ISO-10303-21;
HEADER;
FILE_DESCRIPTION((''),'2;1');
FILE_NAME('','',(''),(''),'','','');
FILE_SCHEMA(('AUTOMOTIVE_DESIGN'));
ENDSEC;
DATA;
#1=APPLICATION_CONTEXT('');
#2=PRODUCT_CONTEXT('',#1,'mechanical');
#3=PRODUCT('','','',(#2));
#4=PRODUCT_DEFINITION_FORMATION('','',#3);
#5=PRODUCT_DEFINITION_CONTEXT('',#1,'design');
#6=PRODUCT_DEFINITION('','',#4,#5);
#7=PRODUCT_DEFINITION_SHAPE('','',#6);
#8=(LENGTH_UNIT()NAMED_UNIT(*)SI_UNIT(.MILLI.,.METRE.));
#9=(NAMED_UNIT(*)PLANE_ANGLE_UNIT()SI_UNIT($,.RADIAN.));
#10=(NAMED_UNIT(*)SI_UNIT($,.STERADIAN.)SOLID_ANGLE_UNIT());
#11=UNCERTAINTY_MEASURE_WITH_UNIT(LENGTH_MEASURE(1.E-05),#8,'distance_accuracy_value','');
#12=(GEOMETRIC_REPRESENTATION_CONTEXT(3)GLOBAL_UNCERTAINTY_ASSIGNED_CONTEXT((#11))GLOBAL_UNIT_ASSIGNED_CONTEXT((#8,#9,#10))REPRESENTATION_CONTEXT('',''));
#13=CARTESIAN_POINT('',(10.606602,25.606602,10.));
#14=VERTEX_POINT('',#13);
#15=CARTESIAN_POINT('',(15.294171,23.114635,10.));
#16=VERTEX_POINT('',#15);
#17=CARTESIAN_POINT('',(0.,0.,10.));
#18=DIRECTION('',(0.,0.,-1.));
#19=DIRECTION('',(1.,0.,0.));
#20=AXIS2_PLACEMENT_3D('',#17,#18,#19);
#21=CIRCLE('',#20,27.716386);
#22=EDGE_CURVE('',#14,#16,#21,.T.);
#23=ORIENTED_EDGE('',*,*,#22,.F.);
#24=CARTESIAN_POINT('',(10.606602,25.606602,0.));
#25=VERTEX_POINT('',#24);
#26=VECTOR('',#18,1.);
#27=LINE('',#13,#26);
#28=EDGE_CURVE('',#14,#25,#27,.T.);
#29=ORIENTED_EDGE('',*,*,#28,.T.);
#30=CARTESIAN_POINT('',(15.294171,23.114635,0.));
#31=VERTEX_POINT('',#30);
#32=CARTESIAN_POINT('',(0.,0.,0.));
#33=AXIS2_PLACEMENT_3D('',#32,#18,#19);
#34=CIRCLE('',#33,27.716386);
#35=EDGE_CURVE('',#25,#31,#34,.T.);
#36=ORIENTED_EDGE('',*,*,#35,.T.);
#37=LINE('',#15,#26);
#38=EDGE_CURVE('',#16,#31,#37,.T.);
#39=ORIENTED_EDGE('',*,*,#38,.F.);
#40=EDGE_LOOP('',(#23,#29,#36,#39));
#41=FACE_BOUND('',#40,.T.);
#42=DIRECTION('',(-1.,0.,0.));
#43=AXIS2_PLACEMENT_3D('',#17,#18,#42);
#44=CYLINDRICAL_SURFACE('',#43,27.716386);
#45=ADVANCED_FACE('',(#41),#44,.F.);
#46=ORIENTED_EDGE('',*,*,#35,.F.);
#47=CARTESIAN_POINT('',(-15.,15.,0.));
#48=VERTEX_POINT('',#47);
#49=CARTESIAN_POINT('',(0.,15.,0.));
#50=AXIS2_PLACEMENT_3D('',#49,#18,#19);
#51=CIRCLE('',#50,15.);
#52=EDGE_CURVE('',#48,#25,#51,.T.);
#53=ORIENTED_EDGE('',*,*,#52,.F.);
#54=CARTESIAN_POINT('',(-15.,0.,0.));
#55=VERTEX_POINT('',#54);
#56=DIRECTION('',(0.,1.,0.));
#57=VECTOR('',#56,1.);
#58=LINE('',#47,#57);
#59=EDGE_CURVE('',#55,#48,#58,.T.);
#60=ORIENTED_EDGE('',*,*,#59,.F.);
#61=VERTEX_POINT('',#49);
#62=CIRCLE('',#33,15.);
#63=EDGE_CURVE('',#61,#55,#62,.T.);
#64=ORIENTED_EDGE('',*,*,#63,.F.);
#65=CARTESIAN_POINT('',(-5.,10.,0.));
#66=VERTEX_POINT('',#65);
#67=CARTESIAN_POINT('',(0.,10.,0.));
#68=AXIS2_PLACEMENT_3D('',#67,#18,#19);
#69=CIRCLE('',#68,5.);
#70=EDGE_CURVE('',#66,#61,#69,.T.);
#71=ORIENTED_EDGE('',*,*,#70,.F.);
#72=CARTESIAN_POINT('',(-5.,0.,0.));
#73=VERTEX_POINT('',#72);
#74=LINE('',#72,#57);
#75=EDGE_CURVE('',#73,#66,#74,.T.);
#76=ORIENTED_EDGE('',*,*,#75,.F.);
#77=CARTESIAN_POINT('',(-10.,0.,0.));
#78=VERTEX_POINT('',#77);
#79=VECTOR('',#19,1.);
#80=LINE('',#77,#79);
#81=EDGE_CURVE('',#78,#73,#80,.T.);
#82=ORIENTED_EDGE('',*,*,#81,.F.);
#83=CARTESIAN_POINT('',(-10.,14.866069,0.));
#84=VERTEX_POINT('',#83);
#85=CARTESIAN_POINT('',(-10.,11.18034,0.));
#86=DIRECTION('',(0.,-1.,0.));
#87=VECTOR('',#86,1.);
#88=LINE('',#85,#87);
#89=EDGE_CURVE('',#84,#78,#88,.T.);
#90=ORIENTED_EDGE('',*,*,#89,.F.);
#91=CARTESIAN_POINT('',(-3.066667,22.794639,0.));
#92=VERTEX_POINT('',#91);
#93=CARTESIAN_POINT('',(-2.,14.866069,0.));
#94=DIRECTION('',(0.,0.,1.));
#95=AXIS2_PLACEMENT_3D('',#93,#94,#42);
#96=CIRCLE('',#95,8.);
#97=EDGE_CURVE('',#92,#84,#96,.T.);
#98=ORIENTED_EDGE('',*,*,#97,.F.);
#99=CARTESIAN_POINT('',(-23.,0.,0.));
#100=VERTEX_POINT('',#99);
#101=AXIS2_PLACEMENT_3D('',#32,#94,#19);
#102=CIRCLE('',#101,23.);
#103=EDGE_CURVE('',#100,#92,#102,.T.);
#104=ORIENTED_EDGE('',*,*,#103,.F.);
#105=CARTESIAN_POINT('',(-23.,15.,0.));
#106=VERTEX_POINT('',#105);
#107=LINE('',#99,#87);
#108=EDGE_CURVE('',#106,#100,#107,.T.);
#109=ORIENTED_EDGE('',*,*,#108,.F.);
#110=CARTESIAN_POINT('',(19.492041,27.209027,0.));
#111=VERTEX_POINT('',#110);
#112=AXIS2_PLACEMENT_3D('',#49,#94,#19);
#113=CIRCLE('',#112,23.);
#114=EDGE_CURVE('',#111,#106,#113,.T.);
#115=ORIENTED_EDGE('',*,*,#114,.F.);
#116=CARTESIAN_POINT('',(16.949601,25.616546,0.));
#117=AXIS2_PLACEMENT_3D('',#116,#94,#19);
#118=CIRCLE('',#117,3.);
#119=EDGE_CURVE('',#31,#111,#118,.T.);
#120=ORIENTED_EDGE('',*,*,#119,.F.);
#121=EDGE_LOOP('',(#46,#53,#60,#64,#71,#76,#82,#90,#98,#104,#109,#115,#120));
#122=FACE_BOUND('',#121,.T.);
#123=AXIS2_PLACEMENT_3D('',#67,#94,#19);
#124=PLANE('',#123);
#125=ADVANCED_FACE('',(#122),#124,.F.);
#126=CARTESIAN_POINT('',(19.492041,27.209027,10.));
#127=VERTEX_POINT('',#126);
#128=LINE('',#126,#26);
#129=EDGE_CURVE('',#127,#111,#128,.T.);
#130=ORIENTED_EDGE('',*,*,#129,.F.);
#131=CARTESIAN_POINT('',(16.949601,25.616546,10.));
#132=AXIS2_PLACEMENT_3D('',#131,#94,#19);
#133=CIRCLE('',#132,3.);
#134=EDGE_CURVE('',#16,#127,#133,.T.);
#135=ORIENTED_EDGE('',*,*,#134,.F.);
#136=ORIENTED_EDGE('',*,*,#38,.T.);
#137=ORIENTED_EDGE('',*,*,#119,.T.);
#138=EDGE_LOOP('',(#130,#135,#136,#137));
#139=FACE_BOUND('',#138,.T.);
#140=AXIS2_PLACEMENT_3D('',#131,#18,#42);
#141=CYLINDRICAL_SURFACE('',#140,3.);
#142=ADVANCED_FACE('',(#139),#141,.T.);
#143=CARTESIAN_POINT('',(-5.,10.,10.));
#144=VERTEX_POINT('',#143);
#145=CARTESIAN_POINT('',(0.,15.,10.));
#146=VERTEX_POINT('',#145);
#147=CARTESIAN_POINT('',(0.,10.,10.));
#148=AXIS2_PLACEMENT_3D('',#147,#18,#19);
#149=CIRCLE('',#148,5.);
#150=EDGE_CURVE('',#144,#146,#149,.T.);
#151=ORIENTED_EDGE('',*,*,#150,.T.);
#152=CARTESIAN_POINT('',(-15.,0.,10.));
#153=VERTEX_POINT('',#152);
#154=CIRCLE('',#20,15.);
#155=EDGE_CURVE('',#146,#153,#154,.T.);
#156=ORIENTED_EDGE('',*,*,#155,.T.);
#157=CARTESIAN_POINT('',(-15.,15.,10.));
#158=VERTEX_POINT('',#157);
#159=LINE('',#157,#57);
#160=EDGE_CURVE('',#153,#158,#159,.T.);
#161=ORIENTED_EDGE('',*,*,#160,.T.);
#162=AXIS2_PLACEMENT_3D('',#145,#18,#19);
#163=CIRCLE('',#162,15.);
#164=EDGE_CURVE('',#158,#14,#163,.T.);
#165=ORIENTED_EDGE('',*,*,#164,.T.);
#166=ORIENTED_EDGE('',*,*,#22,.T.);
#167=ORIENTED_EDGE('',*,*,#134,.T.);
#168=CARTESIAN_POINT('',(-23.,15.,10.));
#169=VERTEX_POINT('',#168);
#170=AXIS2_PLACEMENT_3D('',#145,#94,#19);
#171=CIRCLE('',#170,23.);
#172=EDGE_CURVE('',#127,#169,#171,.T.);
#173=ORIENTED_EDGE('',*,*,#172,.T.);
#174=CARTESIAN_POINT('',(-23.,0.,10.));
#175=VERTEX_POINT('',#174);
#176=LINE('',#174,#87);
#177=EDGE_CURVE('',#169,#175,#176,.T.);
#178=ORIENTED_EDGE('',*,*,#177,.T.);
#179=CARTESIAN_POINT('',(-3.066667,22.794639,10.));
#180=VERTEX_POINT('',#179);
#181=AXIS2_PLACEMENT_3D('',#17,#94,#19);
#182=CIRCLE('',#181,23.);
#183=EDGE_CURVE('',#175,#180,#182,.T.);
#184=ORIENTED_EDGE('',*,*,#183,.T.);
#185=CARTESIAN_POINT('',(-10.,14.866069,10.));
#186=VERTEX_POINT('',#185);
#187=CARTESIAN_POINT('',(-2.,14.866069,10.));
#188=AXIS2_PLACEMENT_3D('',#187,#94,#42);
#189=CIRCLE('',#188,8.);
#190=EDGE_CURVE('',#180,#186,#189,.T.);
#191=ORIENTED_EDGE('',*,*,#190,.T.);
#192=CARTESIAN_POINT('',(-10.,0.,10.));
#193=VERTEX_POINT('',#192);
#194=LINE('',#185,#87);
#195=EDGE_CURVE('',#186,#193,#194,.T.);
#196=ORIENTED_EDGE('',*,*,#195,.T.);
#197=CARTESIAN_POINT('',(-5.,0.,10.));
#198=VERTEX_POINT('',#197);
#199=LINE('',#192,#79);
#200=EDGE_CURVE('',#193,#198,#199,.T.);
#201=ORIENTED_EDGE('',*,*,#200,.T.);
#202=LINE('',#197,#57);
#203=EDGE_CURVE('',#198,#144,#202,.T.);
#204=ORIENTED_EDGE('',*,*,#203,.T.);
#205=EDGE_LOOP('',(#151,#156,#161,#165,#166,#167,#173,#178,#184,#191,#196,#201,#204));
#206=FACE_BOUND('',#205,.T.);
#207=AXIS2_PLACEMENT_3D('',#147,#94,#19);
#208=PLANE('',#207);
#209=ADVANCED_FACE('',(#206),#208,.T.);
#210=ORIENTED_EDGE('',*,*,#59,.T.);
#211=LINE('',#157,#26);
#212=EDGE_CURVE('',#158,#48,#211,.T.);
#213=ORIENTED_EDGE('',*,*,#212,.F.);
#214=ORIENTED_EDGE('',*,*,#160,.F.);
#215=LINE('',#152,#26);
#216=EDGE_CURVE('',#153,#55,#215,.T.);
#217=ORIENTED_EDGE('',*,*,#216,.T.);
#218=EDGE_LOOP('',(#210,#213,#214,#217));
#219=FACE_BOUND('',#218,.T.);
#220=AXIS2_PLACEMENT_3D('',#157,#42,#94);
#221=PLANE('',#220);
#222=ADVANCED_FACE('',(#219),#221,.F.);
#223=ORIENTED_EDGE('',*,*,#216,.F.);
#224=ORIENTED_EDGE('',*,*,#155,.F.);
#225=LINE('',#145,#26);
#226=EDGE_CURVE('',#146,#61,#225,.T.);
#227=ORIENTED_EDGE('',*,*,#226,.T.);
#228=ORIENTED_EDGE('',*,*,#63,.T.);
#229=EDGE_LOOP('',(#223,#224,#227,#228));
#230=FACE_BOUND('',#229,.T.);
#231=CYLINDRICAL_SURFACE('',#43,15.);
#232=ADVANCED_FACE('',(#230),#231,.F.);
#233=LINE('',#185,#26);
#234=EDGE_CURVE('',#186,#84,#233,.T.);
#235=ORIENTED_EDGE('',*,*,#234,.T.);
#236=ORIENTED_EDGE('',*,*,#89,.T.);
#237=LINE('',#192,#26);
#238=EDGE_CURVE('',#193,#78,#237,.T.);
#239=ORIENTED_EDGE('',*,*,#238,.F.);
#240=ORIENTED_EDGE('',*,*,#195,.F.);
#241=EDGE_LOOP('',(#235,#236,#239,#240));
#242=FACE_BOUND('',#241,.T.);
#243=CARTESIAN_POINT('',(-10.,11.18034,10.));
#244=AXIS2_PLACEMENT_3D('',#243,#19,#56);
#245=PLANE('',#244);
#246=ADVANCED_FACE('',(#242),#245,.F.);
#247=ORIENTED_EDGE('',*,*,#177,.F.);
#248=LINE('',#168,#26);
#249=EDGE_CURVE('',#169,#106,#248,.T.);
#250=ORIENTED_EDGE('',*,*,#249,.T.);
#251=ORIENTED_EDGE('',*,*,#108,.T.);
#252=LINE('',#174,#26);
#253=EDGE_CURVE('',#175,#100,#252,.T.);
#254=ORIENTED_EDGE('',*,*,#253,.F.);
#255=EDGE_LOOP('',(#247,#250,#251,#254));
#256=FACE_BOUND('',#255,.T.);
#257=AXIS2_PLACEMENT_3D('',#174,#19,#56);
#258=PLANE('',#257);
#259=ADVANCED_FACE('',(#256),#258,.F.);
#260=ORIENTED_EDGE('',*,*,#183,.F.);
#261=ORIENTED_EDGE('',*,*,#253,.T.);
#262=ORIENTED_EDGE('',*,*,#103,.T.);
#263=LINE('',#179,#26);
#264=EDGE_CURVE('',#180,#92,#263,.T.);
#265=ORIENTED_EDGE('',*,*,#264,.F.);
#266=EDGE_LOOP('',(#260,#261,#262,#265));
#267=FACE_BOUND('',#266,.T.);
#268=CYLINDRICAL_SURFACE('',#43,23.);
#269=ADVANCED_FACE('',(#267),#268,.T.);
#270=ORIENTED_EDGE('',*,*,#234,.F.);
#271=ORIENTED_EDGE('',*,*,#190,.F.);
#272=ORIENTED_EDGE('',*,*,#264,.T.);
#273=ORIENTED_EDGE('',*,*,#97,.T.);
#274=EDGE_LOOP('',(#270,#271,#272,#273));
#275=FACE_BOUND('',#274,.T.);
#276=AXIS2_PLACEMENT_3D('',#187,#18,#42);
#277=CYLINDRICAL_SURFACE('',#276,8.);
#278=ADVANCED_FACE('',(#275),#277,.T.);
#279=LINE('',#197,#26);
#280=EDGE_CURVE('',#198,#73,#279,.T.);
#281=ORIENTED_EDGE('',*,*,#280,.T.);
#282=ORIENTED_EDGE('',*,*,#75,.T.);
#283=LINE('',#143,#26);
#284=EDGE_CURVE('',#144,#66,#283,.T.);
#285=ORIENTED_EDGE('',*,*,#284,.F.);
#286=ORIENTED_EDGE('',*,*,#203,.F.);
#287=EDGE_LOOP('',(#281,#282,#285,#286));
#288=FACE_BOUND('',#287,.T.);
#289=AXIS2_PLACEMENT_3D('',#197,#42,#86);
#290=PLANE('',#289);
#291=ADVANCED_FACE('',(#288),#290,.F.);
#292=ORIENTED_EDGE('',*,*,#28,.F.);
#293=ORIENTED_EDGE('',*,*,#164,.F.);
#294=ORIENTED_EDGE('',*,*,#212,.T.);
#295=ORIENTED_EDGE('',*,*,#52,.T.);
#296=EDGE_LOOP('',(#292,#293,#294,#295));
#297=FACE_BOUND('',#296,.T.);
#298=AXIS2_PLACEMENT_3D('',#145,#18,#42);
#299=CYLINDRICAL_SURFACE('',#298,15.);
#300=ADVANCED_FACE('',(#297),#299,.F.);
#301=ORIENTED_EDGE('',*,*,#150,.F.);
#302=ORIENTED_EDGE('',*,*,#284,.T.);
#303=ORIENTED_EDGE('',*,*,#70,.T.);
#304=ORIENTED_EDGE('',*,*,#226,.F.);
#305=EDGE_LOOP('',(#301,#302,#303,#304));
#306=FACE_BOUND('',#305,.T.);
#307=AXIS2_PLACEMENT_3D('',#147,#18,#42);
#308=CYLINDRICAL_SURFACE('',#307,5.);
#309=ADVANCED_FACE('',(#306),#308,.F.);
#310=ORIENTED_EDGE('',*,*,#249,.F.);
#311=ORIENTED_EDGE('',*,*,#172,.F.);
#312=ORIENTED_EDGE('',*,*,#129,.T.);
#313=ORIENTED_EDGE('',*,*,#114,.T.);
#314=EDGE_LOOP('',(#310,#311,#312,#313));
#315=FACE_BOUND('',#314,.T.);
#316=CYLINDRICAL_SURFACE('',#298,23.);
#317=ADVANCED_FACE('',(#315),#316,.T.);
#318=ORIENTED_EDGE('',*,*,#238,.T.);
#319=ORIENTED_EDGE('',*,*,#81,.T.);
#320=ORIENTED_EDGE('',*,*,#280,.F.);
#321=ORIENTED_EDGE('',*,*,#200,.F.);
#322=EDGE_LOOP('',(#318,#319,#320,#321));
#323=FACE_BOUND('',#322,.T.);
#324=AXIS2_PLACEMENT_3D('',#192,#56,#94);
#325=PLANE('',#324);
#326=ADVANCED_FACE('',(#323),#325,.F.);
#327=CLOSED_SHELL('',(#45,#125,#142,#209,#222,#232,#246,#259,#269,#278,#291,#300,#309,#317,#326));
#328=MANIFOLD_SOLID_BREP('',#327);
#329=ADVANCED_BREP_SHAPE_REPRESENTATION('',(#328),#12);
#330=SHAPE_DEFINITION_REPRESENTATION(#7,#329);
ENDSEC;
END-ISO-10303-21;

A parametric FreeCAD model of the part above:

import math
import FreeCAD as App
import Part
import Sketcher
from FreeCAD import Vector

doc = App.newDocument("Part")
params = doc.addObject("Spreadsheet::Sheet", "Params")
for row, (alias, value) in enumerate([
    ("sketch1_radius", "23 mm"),
    ("sketch1_radius2", "8 mm"),
    ("sketch1_radius3", "5 mm"),
    ("sketch1_radius4", "15 mm"),
    ("sketch1_radius5", "3 mm"),
    ("pad1_length", "10 mm"),
], start=1):
    params.set(f"A{row}", alias)
    params.set(f"B{row}", "=" + value)
    params.setAlias(f"B{row}", alias)

body = doc.addObject("PartDesign::Body", "Body")

# Sketch on XY plane
sketch1 = doc.addObject("Sketcher::SketchObject", "Sketch")
body.addObject(sketch1)
sketch1.AttachmentSupport = (doc.XY_Plane, [""])
sketch1.MapMode = "FlatFace"
sketch1.addGeometry(Part.LineSegment(Vector(-23, 15, 0), Vector(-23, 0, 0)), False)
sketch1.addGeometry(Part.ArcOfCircle(Part.Circle(Vector(0, 0, 0), Vector(0, 0, 1), 23), math.radians(180), math.radians(457.662256)), False)
sketch1.addGeometry(Part.ArcOfCircle(Part.Circle(Vector(-2, 14.866069, 0), Vector(0, 0, 1), 8), math.radians(97.662256), math.radians(180)), False)
sketch1.addGeometry(Part.LineSegment(Vector(-10, 14.866069, 0), Vector(-10, 0, 0)), False)
sketch1.addGeometry(Part.LineSegment(Vector(-10, 0, 0), Vector(-5, 0, 0)), False)
sketch1.addGeometry(Part.LineSegment(Vector(-5, 0, 0), Vector(-5, 10, 0)), False)
sketch1.addGeometry(Part.ArcOfCircle(Part.Circle(Vector(0, 10, 0), Vector(0, 0, 1), 5), math.radians(90), math.radians(180)), False)
sketch1.addGeometry(Part.ArcOfCircle(Part.Circle(Vector(0, 0, 0), Vector(0, 0, 1), 15), math.radians(180), math.radians(450)), False)
sketch1.addGeometry(Part.LineSegment(Vector(-15, 0, 0), Vector(-15, 15, 0)), False)
sketch1.addGeometry(Part.ArcOfCircle(Part.Circle(Vector(0, 15, 0), Vector(0, 0, 1), 15), math.radians(45), math.radians(180)), False)
sketch1.addGeometry(Part.ArcOfCircle(Part.Circle(Vector(0, 0, 0), Vector(0, 0, 1), 27.716386), math.radians(56.508743), math.radians(67.5)), False)
sketch1.addGeometry(Part.ArcOfCircle(Part.Circle(Vector(16.949601, 25.616546, 0), Vector(0, 0, 1), 3), math.radians(-123.491257), math.radians(32.061368)), False)
sketch1.addGeometry(Part.ArcOfCircle(Part.Circle(Vector(0, 15, 0), Vector(0, 0, 1), 23), math.radians(32.061368), math.radians(180)), False)
sketch1.addConstraint(Sketcher.Constraint("Tangent", 0, 2, 1, 1))
sketch1.addConstraint(Sketcher.Constraint("Tangent", 1, 2, 2, 1))
sketch1.addConstraint(Sketcher.Constraint("Tangent", 2, 2, 3, 1))
sketch1.addConstraint(Sketcher.Constraint("Coincident", 3, 2, 4, 1))
sketch1.addConstraint(Sketcher.Constraint("Coincident", 4, 2, 5, 1))
sketch1.addConstraint(Sketcher.Constraint("Tangent", 5, 2, 6, 2))
sketch1.addConstraint(Sketcher.Constraint("Tangent", 6, 1, 7, 2))
sketch1.addConstraint(Sketcher.Constraint("Tangent", 7, 1, 8, 1))
sketch1.addConstraint(Sketcher.Constraint("Tangent", 8, 2, 9, 2))
sketch1.addConstraint(Sketcher.Constraint("Coincident", 9, 1, 10, 2))
sketch1.addConstraint(Sketcher.Constraint("Tangent", 10, 1, 11, 1))
sketch1.addConstraint(Sketcher.Constraint("Tangent", 11, 2, 12, 1))
sketch1.addConstraint(Sketcher.Constraint("Tangent", 12, 2, 0, 1))
sketch1.addConstraint(Sketcher.Constraint("Vertical", 0))
sketch1.addConstraint(Sketcher.Constraint("Vertical", 3))
sketch1.addConstraint(Sketcher.Constraint("Horizontal", 4))
sketch1.addConstraint(Sketcher.Constraint("Vertical", 5))
sketch1.addConstraint(Sketcher.Constraint("Vertical", 8))
sketch1.addConstraint(Sketcher.Constraint("Coincident", 1, 3, -1, 1))
sketch1.addConstraint(Sketcher.Constraint("Coincident", 7, 3, -1, 1))
sketch1.addConstraint(Sketcher.Constraint("Coincident", 10, 3, -1, 1))
sketch1.addConstraint(Sketcher.Constraint("Coincident", 12, 3, 9, 3))
sketch1.addConstraint(Sketcher.Constraint("Coincident", 6, 1, 9, 3))
sketch1.addConstraint(Sketcher.Constraint("Equal", 7, 9))
sketch1.addConstraint(Sketcher.Constraint("PointOnObject", 3, 2, -1))
sketch1.addConstraint(Sketcher.Constraint("Radius", 1, 23.0))
sketch1.addConstraint(Sketcher.Constraint("Radius", 2, 8.0))
sketch1.addConstraint(Sketcher.Constraint("Radius", 6, 5.0))
sketch1.addConstraint(Sketcher.Constraint("Radius", 7, 15.0))
sketch1.addConstraint(Sketcher.Constraint("Radius", 11, 3.0))
sketch1.addConstraint(Sketcher.Constraint("DistanceX", 4, 1, 4, 2, 5.0))
sketch1.addConstraint(Sketcher.Constraint("Radius", 10, 27.716386))
sketch1.setExpression("Constraints[25]", "Params.sketch1_radius")
sketch1.setExpression("Constraints[26]", "Params.sketch1_radius2")
sketch1.setExpression("Constraints[27]", "Params.sketch1_radius3")
sketch1.setExpression("Constraints[28]", "Params.sketch1_radius4")
sketch1.setExpression("Constraints[29]", "Params.sketch1_radius5")
pad1 = doc.addObject("PartDesign::Pad", "Pad")
body.addObject(pad1)
pad1.Profile = sketch1
pad1.setExpression("Length", "Params.pad1_length")

doc.recompute()
